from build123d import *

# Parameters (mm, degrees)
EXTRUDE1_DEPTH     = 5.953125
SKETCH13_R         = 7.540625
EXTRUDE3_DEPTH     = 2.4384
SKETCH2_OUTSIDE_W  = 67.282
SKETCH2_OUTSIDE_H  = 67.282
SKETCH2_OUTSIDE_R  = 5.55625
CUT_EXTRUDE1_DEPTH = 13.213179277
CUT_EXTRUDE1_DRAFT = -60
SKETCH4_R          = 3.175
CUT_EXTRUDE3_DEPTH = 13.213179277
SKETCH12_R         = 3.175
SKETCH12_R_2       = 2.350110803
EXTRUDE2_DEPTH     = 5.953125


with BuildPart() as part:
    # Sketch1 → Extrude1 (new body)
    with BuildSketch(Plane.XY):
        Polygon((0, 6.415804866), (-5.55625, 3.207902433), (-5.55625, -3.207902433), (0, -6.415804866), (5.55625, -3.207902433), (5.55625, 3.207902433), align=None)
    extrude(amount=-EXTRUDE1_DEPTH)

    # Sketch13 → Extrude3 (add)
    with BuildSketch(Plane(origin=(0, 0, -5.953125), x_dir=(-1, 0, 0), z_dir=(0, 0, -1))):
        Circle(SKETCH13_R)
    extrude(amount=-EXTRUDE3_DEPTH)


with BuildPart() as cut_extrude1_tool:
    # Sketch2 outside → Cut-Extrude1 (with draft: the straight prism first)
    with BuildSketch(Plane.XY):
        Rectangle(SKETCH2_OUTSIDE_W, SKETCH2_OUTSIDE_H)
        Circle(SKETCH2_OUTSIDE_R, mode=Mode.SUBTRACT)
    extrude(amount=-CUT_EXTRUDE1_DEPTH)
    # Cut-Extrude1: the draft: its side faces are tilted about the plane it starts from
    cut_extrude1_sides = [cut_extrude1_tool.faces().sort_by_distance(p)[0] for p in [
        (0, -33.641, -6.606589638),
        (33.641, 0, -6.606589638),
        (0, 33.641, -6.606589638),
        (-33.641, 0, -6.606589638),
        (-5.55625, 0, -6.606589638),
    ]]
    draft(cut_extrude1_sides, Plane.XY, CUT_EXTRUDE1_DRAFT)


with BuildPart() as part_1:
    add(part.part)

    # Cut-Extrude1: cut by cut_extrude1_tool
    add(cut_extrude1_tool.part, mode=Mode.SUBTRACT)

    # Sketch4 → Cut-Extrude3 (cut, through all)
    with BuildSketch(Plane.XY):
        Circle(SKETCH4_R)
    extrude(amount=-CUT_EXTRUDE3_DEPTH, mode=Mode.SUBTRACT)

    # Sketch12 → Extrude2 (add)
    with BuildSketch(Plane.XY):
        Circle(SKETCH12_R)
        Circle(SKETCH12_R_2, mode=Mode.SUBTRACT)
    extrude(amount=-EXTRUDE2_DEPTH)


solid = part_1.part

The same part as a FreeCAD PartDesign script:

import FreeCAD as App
import Part
import Sketcher
from FreeCAD import Vector
Q = App.Units.Quantity


def faces_at(feature, points):
    """Names of the faces that lie closest to the given points."""
    faces = feature.Shape.Faces
    near = lambda p: min(range(len(faces)), key=lambda i: faces[i].distToShape(Part.Vertex(*p))[0])
    return sorted({f"Face{near(p) + 1}" for p in points})


def add_polygon(sketch, points):
    """Adds a closed chain of lines whose ends are joined by coincident constraints."""
    first, n = sketch.GeometryCount, len(points)
    for a, b in zip(points, points[1:] + points[:1]):
        sketch.addGeometry(Part.LineSegment(App.Vector(*a, 0), App.Vector(*b, 0)), False)
    for i in range(n):
        sketch.addConstraint(Sketcher.Constraint("Coincident", first + i, 2, first + (i + 1) % n, 1))

doc = App.newDocument("Part")
body = doc.addObject("PartDesign::Body", "Body")

# Sketch on XY plane
sketch1 = doc.addObject("Sketcher::SketchObject", "Sketch")
body.addObject(sketch1)
sketch1.AttachmentSupport = (doc.XY_Plane, [""])
sketch1.MapMode = "FlatFace"
add_polygon(sketch1, [(0, 6), (-6, 3), (-6, -3), (0, -6), (6, -3), (6, 3)])  # lines 0-5
sketch1.addConstraint(Sketcher.Constraint("Vertical", 1))
sketch1.addConstraint(Sketcher.Constraint("Vertical", 4))
sketch1.addConstraint(Sketcher.Constraint("Symmetric", 0, 2, 3, 2, -1, 1))
sketch1.addConstraint(Sketcher.Constraint("Symmetric", 2, 2, 5, 2, -1, 1))
sketch1.addConstraint(Sketcher.Constraint("PointOnObject", 2, 2, -2))
sketch1.addConstraint(Sketcher.Constraint("Parallel", 2, 5))
sketch1.addConstraint(Sketcher.Constraint("Horizontal", 1, 2, 3, 2))
sketch1.addConstraint(Sketcher.Constraint("Angle", 0, Q("-150 deg")))
sketch1.addConstraint(Sketcher.Constraint("DistanceX", 0, 2, -1, 1, Q("0.21875 in")))
sketch1.addConstraint(Sketcher.Constraint("DistanceY", 1, 2, 1, 1, Q("6.415805 mm")))
pad1 = doc.addObject("PartDesign::Pad", "Pad")
body.addObject(pad1)
pad1.Profile = sketch1
pad1.Length = Q("0.234375 in")
pad1.Reversed = True

# Sketch on XY plane
sketch2 = doc.addObject("Sketcher::SketchObject", "Sketch001")
body.addObject(sketch2)
sketch2.AttachmentSupport = (doc.XY_Plane, [""])
sketch2.MapMode = "FlatFace"
sketch2.AttachmentOffset = App.Placement(Vector(0, 0, -0.234375 * 25.4), App.Rotation())
sketch2.addGeometry(Part.Circle(Vector(0, 0, 0), Vector(0, 0, 1), 8), False)
sketch2.addConstraint(Sketcher.Constraint("Coincident", 0, 3, -1, 1))
sketch2.addConstraint(Sketcher.Constraint("Diameter", 0, Q("0.59375 in")))
pad2 = doc.addObject("PartDesign::Pad", "Pad001")
body.addObject(pad2)
pad2.Profile = sketch2
pad2.Length = Q("0.096 in")
body2 = doc.addObject("PartDesign::Body", "Body001")

# Sketch on XY plane
sketch3 = doc.addObject("Sketcher::SketchObject", "Sketch002")
body2.addObject(sketch3)
sketch3.AttachmentSupport = (doc.getObject("XY_Plane001"), [""])
sketch3.MapMode = "FlatFace"
add_polygon(sketch3, [(-34, 34), (-34, -34), (34, -34), (34, 34)])  # lines 0-3
sketch3.addGeometry(Part.Circle(Vector(0, 0, 0), Vector(0, 0, 1), 6), False)  # 4
sketch3.addConstraint(Sketcher.Constraint("Vertical", 0))
sketch3.addConstraint(Sketcher.Constraint("Horizontal", 1))
sketch3.addConstraint(Sketcher.Constraint("Vertical", 2))
sketch3.addConstraint(Sketcher.Constraint("Horizontal", 3))
sketch3.addConstraint(Sketcher.Constraint("Coincident", 4, 3, -1, 1))
sketch3.addConstraint(Sketcher.Constraint("Symmetric", 0, 2, 2, 2, -1, 1))
sketch3.addConstraint(Sketcher.Constraint("Equal", 3, 0))
sketch3.addConstraint(Sketcher.Constraint("Diameter", 4, Q("0.4375 in")))
sketch3.addConstraint(Sketcher.Constraint("DistanceX", 1, 1, 1, 2, Q("67.282 mm")))
pad3 = doc.addObject("PartDesign::Pad", "Pad002")
body2.addObject(pad3)
pad3.Profile = sketch3
pad3.Length = 13.213179
pad3.Reversed = True
doc.recompute()

draft = doc.addObject("PartDesign::Draft", "Draft")
body2.addObject(draft)
draft.Base = (pad3, faces_at(pad3, [
    (0, -33.641, -6.607),
    (33.641, 0, -6.607),
    (0, 33.641, -6.607),
    (-33.641, 0, -6.607),
    (-5.556, 0, -6.607),
]))
draft.NeutralPlane = (doc.getObject("XY_Plane001"), [""])
draft.Angle = 60
draft.Reversed = True
doc.recompute()

boolean = doc.addObject("PartDesign::Boolean", "Boolean")
body.addObject(boolean)
boolean.Type = "Cut"
boolean.addObjects([body2])

# Sketch on XY plane
sketch4 = doc.addObject("Sketcher::SketchObject", "Sketch003")
body.addObject(sketch4)
sketch4.AttachmentSupport = (doc.XY_Plane, [""])
sketch4.MapMode = "FlatFace"
sketch4.addGeometry(Part.Circle(Vector(0, 0, 0), Vector(0, 0, 1), 3.2), False)
sketch4.addConstraint(Sketcher.Constraint("Coincident", 0, 3, -1, 1))
sketch4.addConstraint(Sketcher.Constraint("Diameter", 0, Q("0.25 in")))
pocket1 = doc.addObject("PartDesign::Pocket", "Pocket")
body.addObject(pocket1)
pocket1.Profile = sketch4
pocket1.Type = "ThroughAll"

# Sketch on XY plane
sketch5 = doc.addObject("Sketcher::SketchObject", "Sketch004")
body.addObject(sketch5)
sketch5.AttachmentSupport = (doc.XY_Plane, [""])
sketch5.MapMode = "FlatFace"
sketch5.addGeometry(Part.Circle(Vector(0, 0, 0), Vector(0, 0, 1), 3.2), False)
sketch5.addGeometry(Part.Circle(Vector(0, 0, 0), Vector(0, 0, 1), 2.4), False)
sketch5.addConstraint(Sketcher.Constraint("Coincident", 0, 3, -1, 1))
sketch5.addConstraint(Sketcher.Constraint("Coincident", 1, 3, -1, 1))
sketch5.addConstraint(Sketcher.Constraint("Diameter", 0, Q("0.25 in")))
sketch5.addConstraint(Sketcher.Constraint("Diameter", 1, Q("4.700222 mm")))
pad4 = doc.addObject("PartDesign::Pad", "Pad003")
body.addObject(pad4)
pad4.Profile = sketch5
pad4.Length = Q("0.234375 in")
pad4.Reversed = True

doc.recompute()
